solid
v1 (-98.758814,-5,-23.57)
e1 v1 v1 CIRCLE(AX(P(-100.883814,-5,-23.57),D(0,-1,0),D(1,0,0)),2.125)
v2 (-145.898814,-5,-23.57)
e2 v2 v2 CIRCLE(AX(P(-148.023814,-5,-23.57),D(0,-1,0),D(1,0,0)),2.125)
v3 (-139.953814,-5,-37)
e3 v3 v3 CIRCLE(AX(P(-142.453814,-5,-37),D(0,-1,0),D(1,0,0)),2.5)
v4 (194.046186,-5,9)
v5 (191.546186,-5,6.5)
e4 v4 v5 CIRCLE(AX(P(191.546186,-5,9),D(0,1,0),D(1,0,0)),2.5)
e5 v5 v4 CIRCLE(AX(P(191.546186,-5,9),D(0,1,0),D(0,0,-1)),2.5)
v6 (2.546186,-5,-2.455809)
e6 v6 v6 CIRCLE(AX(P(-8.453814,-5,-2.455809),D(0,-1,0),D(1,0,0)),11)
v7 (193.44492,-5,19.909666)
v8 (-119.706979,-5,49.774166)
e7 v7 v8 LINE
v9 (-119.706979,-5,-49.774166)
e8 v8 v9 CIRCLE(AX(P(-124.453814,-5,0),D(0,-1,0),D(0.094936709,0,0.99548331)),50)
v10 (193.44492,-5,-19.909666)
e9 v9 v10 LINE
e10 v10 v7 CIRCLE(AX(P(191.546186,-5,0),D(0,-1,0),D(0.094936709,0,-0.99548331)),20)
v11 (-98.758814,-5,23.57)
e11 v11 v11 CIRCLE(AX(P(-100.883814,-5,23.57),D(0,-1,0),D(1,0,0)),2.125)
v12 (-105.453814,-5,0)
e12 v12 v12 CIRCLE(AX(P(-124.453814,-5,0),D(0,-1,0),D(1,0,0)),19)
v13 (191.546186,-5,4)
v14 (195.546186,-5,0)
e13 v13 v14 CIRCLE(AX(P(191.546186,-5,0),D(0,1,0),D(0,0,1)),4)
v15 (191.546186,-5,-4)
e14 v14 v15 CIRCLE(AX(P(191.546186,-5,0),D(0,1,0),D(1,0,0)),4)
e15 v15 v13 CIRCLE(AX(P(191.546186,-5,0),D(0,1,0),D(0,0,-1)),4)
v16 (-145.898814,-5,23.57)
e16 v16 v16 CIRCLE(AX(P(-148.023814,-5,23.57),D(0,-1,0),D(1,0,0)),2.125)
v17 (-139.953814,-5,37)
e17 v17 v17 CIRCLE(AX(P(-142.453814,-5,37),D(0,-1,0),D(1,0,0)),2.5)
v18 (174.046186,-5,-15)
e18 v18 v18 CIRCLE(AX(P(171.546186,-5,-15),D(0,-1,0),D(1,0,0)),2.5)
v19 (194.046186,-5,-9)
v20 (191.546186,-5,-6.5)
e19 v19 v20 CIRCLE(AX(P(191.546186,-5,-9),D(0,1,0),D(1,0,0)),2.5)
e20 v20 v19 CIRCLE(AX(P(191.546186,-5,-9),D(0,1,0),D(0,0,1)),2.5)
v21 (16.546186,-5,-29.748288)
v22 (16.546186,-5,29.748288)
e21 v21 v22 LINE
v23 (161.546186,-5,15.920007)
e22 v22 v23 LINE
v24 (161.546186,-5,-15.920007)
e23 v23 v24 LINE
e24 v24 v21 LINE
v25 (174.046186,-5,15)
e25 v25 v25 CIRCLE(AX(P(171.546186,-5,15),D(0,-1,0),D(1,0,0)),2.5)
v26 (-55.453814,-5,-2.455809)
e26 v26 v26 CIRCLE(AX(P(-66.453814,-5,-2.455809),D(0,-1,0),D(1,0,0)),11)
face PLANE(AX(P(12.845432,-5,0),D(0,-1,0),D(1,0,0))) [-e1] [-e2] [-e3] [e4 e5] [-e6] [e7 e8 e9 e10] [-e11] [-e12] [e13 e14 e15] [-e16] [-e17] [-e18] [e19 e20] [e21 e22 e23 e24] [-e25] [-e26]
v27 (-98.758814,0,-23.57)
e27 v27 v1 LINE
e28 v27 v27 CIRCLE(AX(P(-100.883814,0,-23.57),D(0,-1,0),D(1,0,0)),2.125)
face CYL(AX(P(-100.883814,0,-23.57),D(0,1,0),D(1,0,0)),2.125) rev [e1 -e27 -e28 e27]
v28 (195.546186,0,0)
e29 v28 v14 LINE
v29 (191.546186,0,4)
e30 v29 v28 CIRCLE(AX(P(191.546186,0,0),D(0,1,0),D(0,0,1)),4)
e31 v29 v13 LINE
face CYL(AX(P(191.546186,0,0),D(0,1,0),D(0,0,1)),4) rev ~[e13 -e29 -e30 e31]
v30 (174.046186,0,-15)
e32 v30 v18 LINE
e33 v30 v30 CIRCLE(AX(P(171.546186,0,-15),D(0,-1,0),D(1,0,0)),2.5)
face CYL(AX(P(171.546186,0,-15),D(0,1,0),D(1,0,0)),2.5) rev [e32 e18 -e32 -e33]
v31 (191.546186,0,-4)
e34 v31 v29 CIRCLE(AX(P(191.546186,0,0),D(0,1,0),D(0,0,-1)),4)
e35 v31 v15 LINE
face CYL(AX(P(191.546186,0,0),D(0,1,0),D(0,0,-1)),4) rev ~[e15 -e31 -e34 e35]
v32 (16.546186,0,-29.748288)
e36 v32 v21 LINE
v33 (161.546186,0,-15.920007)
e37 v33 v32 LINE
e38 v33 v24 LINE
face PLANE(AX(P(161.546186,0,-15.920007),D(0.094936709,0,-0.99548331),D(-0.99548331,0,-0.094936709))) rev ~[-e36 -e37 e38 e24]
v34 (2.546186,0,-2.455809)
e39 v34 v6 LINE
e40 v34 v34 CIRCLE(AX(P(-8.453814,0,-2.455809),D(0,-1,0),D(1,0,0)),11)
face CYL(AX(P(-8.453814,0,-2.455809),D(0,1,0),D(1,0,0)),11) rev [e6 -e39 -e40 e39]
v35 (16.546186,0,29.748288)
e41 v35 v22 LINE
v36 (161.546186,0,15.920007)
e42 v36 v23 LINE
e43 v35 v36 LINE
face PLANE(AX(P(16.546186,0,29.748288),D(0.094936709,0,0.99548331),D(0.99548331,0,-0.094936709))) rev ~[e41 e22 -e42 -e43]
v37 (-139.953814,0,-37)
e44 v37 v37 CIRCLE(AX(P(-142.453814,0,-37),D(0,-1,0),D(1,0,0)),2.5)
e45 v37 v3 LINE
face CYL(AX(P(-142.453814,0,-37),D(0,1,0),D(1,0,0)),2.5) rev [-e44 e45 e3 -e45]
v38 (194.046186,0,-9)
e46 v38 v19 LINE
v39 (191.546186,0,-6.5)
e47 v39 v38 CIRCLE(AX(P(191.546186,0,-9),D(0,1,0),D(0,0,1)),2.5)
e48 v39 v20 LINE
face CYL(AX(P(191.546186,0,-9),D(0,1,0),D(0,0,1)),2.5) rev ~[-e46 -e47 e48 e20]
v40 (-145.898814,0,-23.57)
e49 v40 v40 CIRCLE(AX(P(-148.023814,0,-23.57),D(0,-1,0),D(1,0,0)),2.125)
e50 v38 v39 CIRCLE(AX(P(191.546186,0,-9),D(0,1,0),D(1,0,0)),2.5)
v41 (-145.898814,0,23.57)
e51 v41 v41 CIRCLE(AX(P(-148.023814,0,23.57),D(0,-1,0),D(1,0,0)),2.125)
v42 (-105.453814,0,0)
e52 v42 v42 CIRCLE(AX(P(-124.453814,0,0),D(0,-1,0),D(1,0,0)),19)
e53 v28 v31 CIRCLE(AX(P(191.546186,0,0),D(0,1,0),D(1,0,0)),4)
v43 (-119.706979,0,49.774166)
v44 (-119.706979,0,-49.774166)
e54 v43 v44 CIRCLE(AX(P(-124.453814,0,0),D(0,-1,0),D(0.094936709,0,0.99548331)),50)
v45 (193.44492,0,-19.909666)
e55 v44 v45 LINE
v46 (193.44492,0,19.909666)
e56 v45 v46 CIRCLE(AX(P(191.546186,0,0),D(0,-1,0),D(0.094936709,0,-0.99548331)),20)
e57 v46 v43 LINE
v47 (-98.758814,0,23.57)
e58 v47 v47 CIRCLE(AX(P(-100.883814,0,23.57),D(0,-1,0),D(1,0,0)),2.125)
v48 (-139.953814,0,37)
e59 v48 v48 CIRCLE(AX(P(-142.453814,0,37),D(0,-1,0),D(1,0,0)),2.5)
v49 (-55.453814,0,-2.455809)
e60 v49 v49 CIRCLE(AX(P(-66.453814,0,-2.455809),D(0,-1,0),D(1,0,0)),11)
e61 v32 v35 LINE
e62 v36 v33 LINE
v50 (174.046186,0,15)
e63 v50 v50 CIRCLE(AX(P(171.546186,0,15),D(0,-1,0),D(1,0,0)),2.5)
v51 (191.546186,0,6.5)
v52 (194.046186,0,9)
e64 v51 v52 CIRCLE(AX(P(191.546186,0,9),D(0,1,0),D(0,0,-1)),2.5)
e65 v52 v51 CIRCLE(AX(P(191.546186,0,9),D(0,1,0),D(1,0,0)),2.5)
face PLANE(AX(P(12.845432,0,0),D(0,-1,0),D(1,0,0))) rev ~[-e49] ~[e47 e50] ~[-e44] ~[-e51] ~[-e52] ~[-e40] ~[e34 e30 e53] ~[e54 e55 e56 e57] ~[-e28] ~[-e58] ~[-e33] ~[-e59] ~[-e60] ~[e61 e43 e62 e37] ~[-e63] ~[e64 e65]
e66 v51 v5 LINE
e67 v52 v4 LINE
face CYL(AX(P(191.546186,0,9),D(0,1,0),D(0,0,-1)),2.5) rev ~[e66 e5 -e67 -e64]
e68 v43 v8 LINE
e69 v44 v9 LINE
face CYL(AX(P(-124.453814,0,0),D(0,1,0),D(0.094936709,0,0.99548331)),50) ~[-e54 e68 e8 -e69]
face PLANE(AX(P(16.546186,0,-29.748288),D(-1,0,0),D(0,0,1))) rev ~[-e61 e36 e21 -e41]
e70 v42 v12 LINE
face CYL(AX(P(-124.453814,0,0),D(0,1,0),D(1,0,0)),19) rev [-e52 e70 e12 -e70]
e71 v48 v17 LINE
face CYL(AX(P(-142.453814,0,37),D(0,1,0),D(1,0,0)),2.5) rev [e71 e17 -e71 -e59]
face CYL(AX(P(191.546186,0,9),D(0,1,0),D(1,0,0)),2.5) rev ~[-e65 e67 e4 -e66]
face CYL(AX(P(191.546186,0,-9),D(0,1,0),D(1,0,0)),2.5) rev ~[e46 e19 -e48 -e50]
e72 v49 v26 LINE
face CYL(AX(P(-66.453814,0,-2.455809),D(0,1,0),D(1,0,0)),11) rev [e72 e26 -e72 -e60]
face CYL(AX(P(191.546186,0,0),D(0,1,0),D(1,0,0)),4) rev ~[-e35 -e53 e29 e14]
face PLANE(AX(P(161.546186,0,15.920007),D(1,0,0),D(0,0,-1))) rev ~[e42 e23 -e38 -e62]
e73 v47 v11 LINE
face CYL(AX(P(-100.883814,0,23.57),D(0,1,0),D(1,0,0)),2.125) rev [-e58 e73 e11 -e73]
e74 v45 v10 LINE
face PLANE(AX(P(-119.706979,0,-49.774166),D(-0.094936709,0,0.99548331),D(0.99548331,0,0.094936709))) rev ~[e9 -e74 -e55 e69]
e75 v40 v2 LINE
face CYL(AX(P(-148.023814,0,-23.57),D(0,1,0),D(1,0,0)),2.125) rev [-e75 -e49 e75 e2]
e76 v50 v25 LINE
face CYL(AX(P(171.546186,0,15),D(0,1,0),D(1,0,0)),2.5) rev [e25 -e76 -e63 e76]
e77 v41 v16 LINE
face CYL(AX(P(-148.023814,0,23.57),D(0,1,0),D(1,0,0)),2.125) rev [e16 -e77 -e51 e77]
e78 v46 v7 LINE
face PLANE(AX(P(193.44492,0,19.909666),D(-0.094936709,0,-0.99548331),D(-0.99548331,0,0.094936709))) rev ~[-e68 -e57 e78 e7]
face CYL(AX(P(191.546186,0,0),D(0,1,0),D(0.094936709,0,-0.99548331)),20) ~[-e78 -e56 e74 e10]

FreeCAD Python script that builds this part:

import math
import FreeCAD as App
import Part
import Sketcher
Q = App.Units.Quantity


def add_polygon(sketch, points):
    """Adds a closed chain of lines whose ends are joined by coincident constraints."""
    first, n = sketch.GeometryCount, len(points)
    for a, b in zip(points, points[1:] + points[:1]):
        sketch.addGeometry(Part.LineSegment(App.Vector(*a, 0), App.Vector(*b, 0)), False)
    for i in range(n):
        sketch.addConstraint(Sketcher.Constraint("Coincident", first + i, 2, first + (i + 1) % n, 1))

doc = App.newDocument("Part")
body = doc.addObject("PartDesign::Body", "Body")

# Sketch on XZ plane
sketch1 = body.newObject("Sketcher::SketchObject", "Sketch")
sketch1.AttachmentSupport = (doc.getObject("XZ_Plane"), [""])
sketch1.MapMode = "FlatFace"
sketch1.addGeometry(Part.LineSegment(App.Vector(193.4, 19.9, 0), App.Vector(-119.7, 49.8, 0)), False)  # 0
sketch1.addGeometry(Part.ArcOfCircle(Part.Circle(App.Vector(-124.5, 0, 0), App.Vector(0, 0, 1), 50), math.radians(85), math.radians(275)), False)  # 1
sketch1.addGeometry(Part.LineSegment(App.Vector(-119.7, -49.8, 0), App.Vector(193.4, -19.9, 0)), False)  # 2
sketch1.addGeometry(Part.ArcOfCircle(Part.Circle(App.Vector(191.5, 0, 0), App.Vector(0, 0, 1), 20), math.radians(-85), math.radians(85)), False)  # 3
sketch1.addGeometry(Part.Circle(App.Vector(-142.5, -37, 0), App.Vector(0, 0, 1), 2.5), False)  # 4
sketch1.addGeometry(Part.Circle(App.Vector(-148, -23.6, 0), App.Vector(0, 0, 1), 2.1), False)  # 5
sketch1.addGeometry(Part.Circle(App.Vector(-100.9, -23.6, 0), App.Vector(0, 0, 1), 2.1), False)  # 6
sketch1.addGeometry(Part.Circle(App.Vector(-66.5, -2.5, 0), App.Vector(0, 0, 1), 11), False)  # 7
sketch1.addGeometry(Part.Circle(App.Vector(-8.5, -2.5, 0), App.Vector(0, 0, 1), 11), False)  # 8
sketch1.addGeometry(Part.Circle(App.Vector(171.5, -15, 0), App.Vector(0, 0, 1), 2.5), False)  # 9
sketch1.addGeometry(Part.ArcOfCircle(Part.Circle(App.Vector(191.5, -9, 0), App.Vector(0, 0, 1), 2.5), math.radians(0), math.radians(90)), False)  # 10
sketch1.addGeometry(Part.ArcOfCircle(Part.Circle(App.Vector(191.5, -9, 0), App.Vector(0, 0, 1), 2.5), math.radians(90), math.radians(360)), False)  # 11
sketch1.addGeometry(Part.Circle(App.Vector(-124.5, 0, 0), App.Vector(0, 0, 1), 19), False)  # 12
sketch1.addGeometry(Part.Circle(App.Vector(-148, 23.6, 0), App.Vector(0, 0, 1), 2.1), False)  # 13
sketch1.addGeometry(Part.Circle(App.Vector(-100.9, 23.6, 0), App.Vector(0, 0, 1), 2.1), False)  # 14
sketch1.addGeometry(Part.Circle(App.Vector(-142.5, 37, 0), App.Vector(0, 0, 1), 2.5), False)  # 15
add_polygon(sketch1, [(161.5, -15.9), (16.5, -29.7), (16.5, 29.7), (161.5, 15.9)])  # lines 16-19
sketch1.addGeometry(Part.ArcOfCircle(Part.Circle(App.Vector(191.5, 0, 0), App.Vector(0, 0, 1), 4), math.radians(90), math.radians(270)), False)  # 20
sketch1.addGeometry(Part.ArcOfCircle(Part.Circle(App.Vector(191.5, 0, 0), App.Vector(0, 0, 1), 4), math.radians(0), math.radians(90)), False)  # 21
sketch1.addGeometry(Part.ArcOfCircle(Part.Circle(App.Vector(191.5, 0, 0), App.Vector(0, 0, 1), 4), math.radians(-90), math.radians(0)), False)  # 22
sketch1.addGeometry(Part.ArcOfCircle(Part.Circle(App.Vector(191.5, 9, 0), App.Vector(0, 0, 1), 2.5), math.radians(0), math.radians(270)), False)  # 23
sketch1.addGeometry(Part.ArcOfCircle(Part.Circle(App.Vector(191.5, 9, 0), App.Vector(0, 0, 1), 2.5), math.radians(-90), math.radians(0)), False)  # 24
sketch1.addGeometry(Part.Circle(App.Vector(171.5, 15, 0), App.Vector(0, 0, 1), 2.5), False)  # 25
sketch1.addConstraint([
    Sketcher.Constraint("Tangent", 0, 2, 1, 1),
    Sketcher.Constraint("Tangent", 1, 2, 2, 1),
    Sketcher.Constraint("Tangent", 2, 2, 3, 1),
    Sketcher.Constraint("Tangent", 3, 2, 0, 1),
    Sketcher.Constraint("Tangent", 10, 1, 11, 2),
    Sketcher.Constraint("Coincident", 11, 1, 10, 2),
    Sketcher.Constraint("Tangent", 20, 1, 21, 2),
    Sketcher.Constraint("Tangent", 21, 1, 22, 2),
    Sketcher.Constraint("Tangent", 22, 1, 20, 2),
    Sketcher.Constraint("Tangent", 23, 1, 24, 2),
    Sketcher.Constraint("Coincident", 24, 1, 23, 2),
    Sketcher.Constraint("Vertical", 17),
    Sketcher.Constraint("Vertical", 19),
    Sketcher.Constraint("Coincident", 12, 3, 1, 3),
    Sketcher.Constraint("Coincident", 20, 3, 3, 3),
    Sketcher.Constraint("Equal", 5, 6),
    Sketcher.Constraint("Equal", 7, 8),
    Sketcher.Constraint("Equal", 4, 9),
    Sketcher.Constraint("Equal", 9, 10),
    Sketcher.Constraint("Equal", 6, 13),
    Sketcher.Constraint("Equal", 13, 14),
    Sketcher.Constraint("Equal", 11, 15),
    Sketcher.Constraint("Equal", 15, 23),
    Sketcher.Constraint("Equal", 24, 25),
    Sketcher.Constraint("Symmetric", 5, 3, 13, 3, -1),
    Sketcher.Constraint("Symmetric", 6, 3, 14, 3, -1),
    Sketcher.Constraint("Symmetric", 4, 3, 15, 3, -1),
    Sketcher.Constraint("Symmetric", 10, 3, 23, 3, -1),
    Sketcher.Constraint("Symmetric", 9, 3, 25, 3, -1),
    Sketcher.Constraint("Symmetric", 0, 2, 1, 2, -1),
    Sketcher.Constraint("PointOnObject", 21, 1, -1),
    Sketcher.Constraint("Parallel", 2, 16),
    Sketcher.Constraint("Parallel", 0, 18),
    Sketcher.Constraint("Horizontal", 5, 3, 6, 3),
    Sketcher.Constraint("Horizontal", 7, 3, 8, 3),
    Sketcher.Constraint("Horizontal", 11, 3, 10, 1),
    Sketcher.Constraint("Horizontal", 24, 3, 23, 1),
    Sketcher.Constraint("Vertical", 3, 3, 10, 3),
    Sketcher.Constraint("Vertical", 24, 3, 11, 1),
    Sketcher.Constraint("Vertical", 11, 1, 20, 1),
    Sketcher.Constraint("Vertical", 20, 1, 22, 1),
    Sketcher.Constraint("Vertical", 22, 1, 24, 1),
    Sketcher.Constraint("Diameter", 4, Q("5 mm")),
    Sketcher.Constraint("Diameter", 7, Q("22 mm")),
    Sketcher.Constraint("Diameter", 12, Q("38 mm")),
    Sketcher.Constraint("Radius", 1, Q("50 mm")),
    Sketcher.Constraint("Radius", 3, Q("20 mm")),
    Sketcher.Constraint("Radius", 20, Q("4 mm")),
    Sketcher.Constraint("Diameter", 5, Q("4.25 mm")),
    Sketcher.Constraint("DistanceY", 4, 3, -1, 1, Q("37 mm")),
    Sketcher.Constraint("DistanceY", 9, 3, -1, 1, Q("15 mm")),
    Sketcher.Constraint("DistanceY", 10, 3, -1, 1, Q("9 mm")),
    Sketcher.Constraint("DistanceX", 1, 3, 3, 3, Q("316 mm")),
    Sketcher.Constraint("DistanceX", 4, 3, 1, 3, Q("18 mm")),
    Sketcher.Constraint("DistanceX", 1, 3, 7, 3, Q("58 mm")),
    Sketcher.Constraint("DistanceX", 7, 3, 8, 3, Q("58 mm")),
    Sketcher.Constraint("DistanceX", 9, 3, 3, 3, Q("20 mm")),
    Sketcher.Constraint("DistanceX", 8, 3, 16, 2, Q("25 mm")),
    Sketcher.Constraint("DistanceX", 18, 2, 25, 3, Q("10 mm")),
    Sketcher.Constraint("DistanceY", 5, 3, -1, 1, Q("23.57 mm")),
    Sketcher.Constraint("DistanceX", 5, 3, 4, 3, Q("5.57 mm")),
    Sketcher.Constraint("DistanceX", 1, 3, 6, 3, Q("23.57 mm")),
    Sketcher.Constraint("DistanceY", 17, 1, 17, 2, Q("59.496576 mm")),
    Sketcher.Constraint("DistanceY", 7, 3, -1, 1, Q("2.455809 mm")),
    Sketcher.Constraint("DistanceX", 0, 2, -1, 1, Q("119.706979 mm")),
    Sketcher.Constraint("DistanceY", 16, 2, 8, 3, Q("27.292479 mm")),
])
pad1 = body.newObject("PartDesign::Pad", "Pad")
pad1.Profile = sketch1
pad1.Length = 5

doc.recompute()
